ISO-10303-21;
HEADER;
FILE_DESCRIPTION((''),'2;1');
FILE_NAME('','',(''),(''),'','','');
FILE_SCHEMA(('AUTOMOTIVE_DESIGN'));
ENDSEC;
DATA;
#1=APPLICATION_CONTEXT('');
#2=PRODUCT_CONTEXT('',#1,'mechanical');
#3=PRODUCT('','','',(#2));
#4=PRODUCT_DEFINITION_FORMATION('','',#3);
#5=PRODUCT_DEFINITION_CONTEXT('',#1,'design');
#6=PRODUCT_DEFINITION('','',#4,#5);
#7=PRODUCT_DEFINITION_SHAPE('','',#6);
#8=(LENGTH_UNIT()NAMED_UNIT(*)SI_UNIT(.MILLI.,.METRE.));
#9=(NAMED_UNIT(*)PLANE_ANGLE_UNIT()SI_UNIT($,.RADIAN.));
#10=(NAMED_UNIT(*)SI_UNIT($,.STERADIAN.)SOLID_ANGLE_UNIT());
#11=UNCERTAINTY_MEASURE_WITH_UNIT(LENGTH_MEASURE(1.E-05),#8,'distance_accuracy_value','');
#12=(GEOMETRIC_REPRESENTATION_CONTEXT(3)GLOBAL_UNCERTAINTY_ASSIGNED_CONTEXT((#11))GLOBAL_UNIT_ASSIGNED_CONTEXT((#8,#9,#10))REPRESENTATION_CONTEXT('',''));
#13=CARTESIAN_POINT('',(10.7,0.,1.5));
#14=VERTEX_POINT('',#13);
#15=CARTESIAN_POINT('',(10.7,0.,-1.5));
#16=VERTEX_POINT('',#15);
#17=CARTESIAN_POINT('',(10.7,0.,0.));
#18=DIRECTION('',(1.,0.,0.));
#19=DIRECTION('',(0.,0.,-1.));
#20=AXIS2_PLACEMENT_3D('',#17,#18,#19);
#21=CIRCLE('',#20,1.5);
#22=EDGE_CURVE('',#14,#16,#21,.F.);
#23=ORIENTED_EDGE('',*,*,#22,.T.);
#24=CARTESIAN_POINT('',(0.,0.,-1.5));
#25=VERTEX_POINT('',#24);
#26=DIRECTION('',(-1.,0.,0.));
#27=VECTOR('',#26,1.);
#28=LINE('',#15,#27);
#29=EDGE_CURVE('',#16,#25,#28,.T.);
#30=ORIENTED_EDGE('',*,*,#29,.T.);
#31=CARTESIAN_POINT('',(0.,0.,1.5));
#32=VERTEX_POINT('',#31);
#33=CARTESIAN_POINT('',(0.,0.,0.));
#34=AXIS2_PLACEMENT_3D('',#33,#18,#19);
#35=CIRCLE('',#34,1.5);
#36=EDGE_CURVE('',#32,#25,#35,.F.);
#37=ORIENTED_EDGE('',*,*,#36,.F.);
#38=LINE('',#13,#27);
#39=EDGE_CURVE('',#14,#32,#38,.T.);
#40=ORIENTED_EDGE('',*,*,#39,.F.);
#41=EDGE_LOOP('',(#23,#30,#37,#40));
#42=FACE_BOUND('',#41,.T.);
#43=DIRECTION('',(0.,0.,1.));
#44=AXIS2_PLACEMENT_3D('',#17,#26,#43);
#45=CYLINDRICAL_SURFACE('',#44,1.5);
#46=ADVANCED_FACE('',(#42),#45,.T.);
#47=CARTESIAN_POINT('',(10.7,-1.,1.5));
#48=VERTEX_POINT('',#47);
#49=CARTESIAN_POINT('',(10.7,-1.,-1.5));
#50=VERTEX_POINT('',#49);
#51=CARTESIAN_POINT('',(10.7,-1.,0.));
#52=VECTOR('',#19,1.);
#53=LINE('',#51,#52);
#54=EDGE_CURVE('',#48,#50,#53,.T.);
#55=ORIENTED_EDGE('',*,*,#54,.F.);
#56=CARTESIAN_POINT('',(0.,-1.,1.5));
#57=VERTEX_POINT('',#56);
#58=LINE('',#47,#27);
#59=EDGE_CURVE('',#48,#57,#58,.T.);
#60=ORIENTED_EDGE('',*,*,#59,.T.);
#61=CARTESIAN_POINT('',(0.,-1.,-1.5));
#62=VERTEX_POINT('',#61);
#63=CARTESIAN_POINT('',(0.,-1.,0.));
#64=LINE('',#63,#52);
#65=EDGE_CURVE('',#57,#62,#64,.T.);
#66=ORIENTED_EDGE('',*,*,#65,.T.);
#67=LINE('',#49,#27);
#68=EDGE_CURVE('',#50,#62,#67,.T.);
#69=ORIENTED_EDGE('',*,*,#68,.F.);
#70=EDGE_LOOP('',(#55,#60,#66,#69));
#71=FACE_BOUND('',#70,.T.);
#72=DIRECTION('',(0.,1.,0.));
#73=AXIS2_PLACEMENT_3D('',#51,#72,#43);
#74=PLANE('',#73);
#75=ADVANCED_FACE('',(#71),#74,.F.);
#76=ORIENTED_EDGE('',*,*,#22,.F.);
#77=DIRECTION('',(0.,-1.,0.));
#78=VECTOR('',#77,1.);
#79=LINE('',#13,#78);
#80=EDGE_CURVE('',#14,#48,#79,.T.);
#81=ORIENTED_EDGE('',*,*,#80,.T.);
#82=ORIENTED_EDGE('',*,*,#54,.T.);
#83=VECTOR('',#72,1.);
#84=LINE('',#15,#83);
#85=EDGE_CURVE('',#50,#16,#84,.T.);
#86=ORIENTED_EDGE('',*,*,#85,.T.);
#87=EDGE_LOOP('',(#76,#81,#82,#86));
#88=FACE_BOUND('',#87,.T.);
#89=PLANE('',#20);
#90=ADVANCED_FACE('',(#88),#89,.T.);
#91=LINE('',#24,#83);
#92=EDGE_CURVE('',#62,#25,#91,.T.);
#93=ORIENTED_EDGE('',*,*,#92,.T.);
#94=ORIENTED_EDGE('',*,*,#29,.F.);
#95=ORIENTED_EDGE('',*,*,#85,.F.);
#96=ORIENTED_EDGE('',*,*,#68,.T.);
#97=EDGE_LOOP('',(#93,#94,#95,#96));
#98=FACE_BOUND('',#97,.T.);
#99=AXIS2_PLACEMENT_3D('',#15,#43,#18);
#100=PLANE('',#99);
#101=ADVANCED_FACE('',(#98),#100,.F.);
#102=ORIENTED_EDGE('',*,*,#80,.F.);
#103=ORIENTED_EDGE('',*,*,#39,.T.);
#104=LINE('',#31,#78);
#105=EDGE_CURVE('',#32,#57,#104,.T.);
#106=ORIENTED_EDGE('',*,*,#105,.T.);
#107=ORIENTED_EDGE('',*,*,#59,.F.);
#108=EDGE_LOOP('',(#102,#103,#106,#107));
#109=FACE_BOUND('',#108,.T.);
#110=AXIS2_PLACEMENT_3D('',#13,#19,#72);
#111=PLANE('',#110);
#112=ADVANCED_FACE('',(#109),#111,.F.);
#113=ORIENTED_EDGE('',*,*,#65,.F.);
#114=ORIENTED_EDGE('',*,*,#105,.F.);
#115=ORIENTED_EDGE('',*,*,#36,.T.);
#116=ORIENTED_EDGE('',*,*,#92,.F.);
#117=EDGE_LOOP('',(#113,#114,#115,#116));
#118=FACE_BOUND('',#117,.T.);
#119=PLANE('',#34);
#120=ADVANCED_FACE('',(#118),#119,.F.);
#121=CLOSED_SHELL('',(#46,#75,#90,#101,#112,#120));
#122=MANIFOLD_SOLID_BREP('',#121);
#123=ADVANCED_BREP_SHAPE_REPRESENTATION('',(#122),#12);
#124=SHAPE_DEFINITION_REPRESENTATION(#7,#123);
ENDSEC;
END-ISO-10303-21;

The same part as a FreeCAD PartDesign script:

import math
import FreeCAD as App
import Part
import Sketcher
Q = App.Units.Quantity

doc = App.newDocument("Part")
params = doc.addObject("Spreadsheet::Sheet", "Params")
for row, (alias, value) in enumerate([
    ("sketch1_radius", "1.5 mm"),
    ("sketch1_width", "1 mm"),
    ("pad1_length", "10.7 mm"),
], start=1):
    params.set(f"A{row}", alias)
    params.set(f"B{row}", "=" + value)
    params.setAlias(f"B{row}", alias)

body = doc.addObject("PartDesign::Body", "Body")

sketch1 = body.newObject("Sketcher::SketchObject", "Sketch")
sketch1.AttachmentSupport = (doc.getObject("YZ_Plane"), [""])
sketch1.MapMode = "FlatFace"
sketch1.addGeometry([
    Part.ArcOfCircle(Part.Circle(App.Vector(0, 0, 0), App.Vector(0, 0, 1), 1.5), math.radians(-90), math.radians(90)),
    Part.LineSegment(App.Vector(0, 1.5, 0), App.Vector(-1, 1.5, 0)),
    Part.LineSegment(App.Vector(-1, 1.5, 0), App.Vector(-1, -1.5, 0)),
    Part.LineSegment(App.Vector(-1, -1.5, 0), App.Vector(0, -1.5, 0)),
], False)
sketch1.addConstraint([
    Sketcher.Constraint("Tangent", 0, 2, 1, 1),
    Sketcher.Constraint("Coincident", 1, 2, 2, 1),
    Sketcher.Constraint("Coincident", 2, 2, 3, 1),
    Sketcher.Constraint("Tangent", 3, 2, 0, 1),
    Sketcher.Constraint("Horizontal", 1),
    Sketcher.Constraint("Vertical", 2),
    Sketcher.Constraint("Horizontal", 3),
    Sketcher.Constraint("Coincident", 0, 3, -1, 1),
    Sketcher.Constraint("Radius", 0, Q("1.5 mm")),
    Sketcher.Constraint("DistanceX", 1, 2, 1, 1, Q("1 mm")),
])
sketch1.setExpression("Constraints[8]", "Params.sketch1_radius")
sketch1.setExpression("Constraints[9]", "Params.sketch1_width")
pad1 = body.newObject("PartDesign::Pad", "Pad")
pad1.Profile = sketch1
pad1.setExpression("Length", "Params.pad1_length")

doc.recompute()
